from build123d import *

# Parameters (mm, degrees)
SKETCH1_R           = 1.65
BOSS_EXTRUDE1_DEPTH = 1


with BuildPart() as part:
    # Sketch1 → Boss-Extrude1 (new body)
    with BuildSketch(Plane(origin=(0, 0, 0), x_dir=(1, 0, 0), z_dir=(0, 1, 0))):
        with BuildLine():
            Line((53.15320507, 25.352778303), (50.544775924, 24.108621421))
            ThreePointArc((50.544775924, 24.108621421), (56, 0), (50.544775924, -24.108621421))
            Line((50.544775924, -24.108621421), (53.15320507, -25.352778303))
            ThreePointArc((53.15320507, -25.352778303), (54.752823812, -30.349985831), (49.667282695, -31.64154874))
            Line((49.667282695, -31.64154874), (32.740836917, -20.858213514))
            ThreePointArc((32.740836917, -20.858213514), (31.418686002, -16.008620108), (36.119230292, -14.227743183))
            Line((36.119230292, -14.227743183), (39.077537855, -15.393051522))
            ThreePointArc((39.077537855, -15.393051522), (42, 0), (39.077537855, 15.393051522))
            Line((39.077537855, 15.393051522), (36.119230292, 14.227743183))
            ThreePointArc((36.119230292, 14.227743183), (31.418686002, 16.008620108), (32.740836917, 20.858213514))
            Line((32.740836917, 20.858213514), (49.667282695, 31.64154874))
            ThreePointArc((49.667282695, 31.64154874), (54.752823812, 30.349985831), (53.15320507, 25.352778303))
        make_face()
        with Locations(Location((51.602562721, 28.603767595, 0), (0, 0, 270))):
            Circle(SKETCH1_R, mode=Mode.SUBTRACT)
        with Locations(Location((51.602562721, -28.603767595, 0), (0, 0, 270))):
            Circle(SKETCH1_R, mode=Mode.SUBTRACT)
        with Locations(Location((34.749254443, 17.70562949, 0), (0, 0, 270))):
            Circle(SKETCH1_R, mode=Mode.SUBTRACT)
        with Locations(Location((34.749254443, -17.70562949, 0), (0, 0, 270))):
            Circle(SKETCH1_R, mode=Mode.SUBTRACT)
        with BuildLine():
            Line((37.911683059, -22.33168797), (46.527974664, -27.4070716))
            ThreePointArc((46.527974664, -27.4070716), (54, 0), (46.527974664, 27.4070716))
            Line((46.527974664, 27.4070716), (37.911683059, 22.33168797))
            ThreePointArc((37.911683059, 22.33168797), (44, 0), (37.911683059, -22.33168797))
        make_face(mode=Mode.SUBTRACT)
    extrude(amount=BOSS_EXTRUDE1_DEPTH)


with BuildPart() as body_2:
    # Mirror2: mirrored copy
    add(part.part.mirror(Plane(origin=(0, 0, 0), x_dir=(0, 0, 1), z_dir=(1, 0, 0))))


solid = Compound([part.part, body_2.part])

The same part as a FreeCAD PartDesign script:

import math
import FreeCAD as App
import Part
import Sketcher
from FreeCAD import Vector
Q = App.Units.Quantity

doc = App.newDocument("Part")
params = doc.addObject("Spreadsheet::Sheet", "Params")
for row, (alias, value) in enumerate([
    ("sketch1_radius", "42 mm"),
    ("sketch1_radius2", "56 mm"),
    ("sketch1_radius3", "44 mm"),
    ("sketch1_radius4", "54 mm"),
    ("sketch1_diameter", "3.3 mm"),
    ("pad1_length", "1 mm"),
], start=1):
    params.set(f"A{row}", alias)
    params.set(f"B{row}", "=" + value)
    params.setAlias(f"B{row}", alias)

body = doc.addObject("PartDesign::Body", "Body")

# Sketch on XZ plane
sketch1 = doc.addObject("Sketcher::SketchObject", "Sketch")
body.addObject(sketch1)
sketch1.AttachmentSupport = (doc.XZ_Plane, [""])
sketch1.MapMode = "FlatFace"
sketch1.addGeometry(Part.LineSegment(Vector(50.5, -24.1, 0), Vector(53.2, -25.4, 0)), False)
sketch1.addGeometry(Part.ArcOfCircle(Part.Circle(Vector(51.6, -28.6, 0), Vector(0, 0, 1), 3.6), math.radians(-122), math.radians(65)), False)
sketch1.addGeometry(Part.LineSegment(Vector(49.7, -31.6, 0), Vector(32.7, -20.9, 0)), False)
sketch1.addGeometry(Part.ArcOfCircle(Part.Circle(Vector(34.7, -17.7, 0), Vector(0, 0, 1), 3.7), math.radians(69), math.radians(237)), False)
sketch1.addGeometry(Part.LineSegment(Vector(36.1, -14.2, 0), Vector(39.1, -15.4, 0)), False)
sketch1.addGeometry(Part.ArcOfCircle(Part.Circle(Vector(0, 0, 0), Vector(0, 0, 1), 42), math.radians(-22), math.radians(22)), False)
sketch1.addGeometry(Part.LineSegment(Vector(39.1, 15.4, 0), Vector(36.1, 14.2, 0)), False)
sketch1.addGeometry(Part.ArcOfCircle(Part.Circle(Vector(34.7, 17.7, 0), Vector(0, 0, 1), 3.7), math.radians(123), math.radians(291)), False)
sketch1.addGeometry(Part.LineSegment(Vector(32.7, 20.9, 0), Vector(49.7, 31.6, 0)), False)
sketch1.addGeometry(Part.ArcOfCircle(Part.Circle(Vector(51.6, 28.6, 0), Vector(0, 0, 1), 3.6), math.radians(-65), math.radians(122)), False)
sketch1.addGeometry(Part.LineSegment(Vector(53.2, 25.4, 0), Vector(50.5, 24.1, 0)), False)
sketch1.addGeometry(Part.ArcOfCircle(Part.Circle(Vector(0, 0, 0), Vector(0, 0, 1), 56), math.radians(-25), math.radians(25)), False)
sketch1.addGeometry(Part.Circle(Vector(51.6, 28.6, 0), Vector(0, 0, 1), 1.6), False)
sketch1.addGeometry(Part.Circle(Vector(34.7, 17.7, 0), Vector(0, 0, 1), 1.6), False)
sketch1.addGeometry(Part.ArcOfCircle(Part.Circle(Vector(0, 0, 0), Vector(0, 0, 1), 44), math.radians(-31), math.radians(31)), False)
sketch1.addGeometry(Part.LineSegment(Vector(37.9, -22.3, 0), Vector(46.5, -27.4, 0)), False)
sketch1.addGeometry(Part.ArcOfCircle(Part.Circle(Vector(0, 0, 0), Vector(0, 0, 1), 54), math.radians(-30), math.radians(30)), False)
sketch1.addGeometry(Part.LineSegment(Vector(46.5, 27.4, 0), Vector(37.9, 22.3, 0)), False)
sketch1.addGeometry(Part.Circle(Vector(51.6, -28.6, 0), Vector(0, 0, 1), 1.6), False)
sketch1.addGeometry(Part.Circle(Vector(34.7, -17.7, 0), Vector(0, 0, 1), 1.6), False)
sketch1.addConstraint(Sketcher.Constraint("Tangent", 0, 2, 1, 2))
sketch1.addConstraint(Sketcher.Constraint("Tangent", 1, 1, 2, 1))
sketch1.addConstraint(Sketcher.Constraint("Tangent", 2, 2, 3, 2))
sketch1.addConstraint(Sketcher.Constraint("Tangent", 3, 1, 4, 1))
sketch1.addConstraint(Sketcher.Constraint("Coincident", 4, 2, 5, 1))
sketch1.addConstraint(Sketcher.Constraint("Coincident", 5, 2, 6, 1))
sketch1.addConstraint(Sketcher.Constraint("Tangent", 6, 2, 7, 2))
sketch1.addConstraint(Sketcher.Constraint("Tangent", 7, 1, 8, 1))
sketch1.addConstraint(Sketcher.Constraint("Tangent", 8, 2, 9, 2))
sketch1.addConstraint(Sketcher.Constraint("Tangent", 9, 1, 10, 1))
sketch1.addConstraint(Sketcher.Constraint("Coincident", 10, 2, 11, 2))
sketch1.addConstraint(Sketcher.Constraint("Coincident", 11, 1, 0, 1))
sketch1.addConstraint(Sketcher.Constraint("Coincident", 14, 1, 15, 1))
sketch1.addConstraint(Sketcher.Constraint("Coincident", 15, 2, 16, 1))
sketch1.addConstraint(Sketcher.Constraint("Coincident", 16, 2, 17, 1))
sketch1.addConstraint(Sketcher.Constraint("Coincident", 17, 2, 14, 2))
sketch1.addConstraint(Sketcher.Constraint("Coincident", 5, 3, -1, 1))
sketch1.addConstraint(Sketcher.Constraint("Coincident", 11, 3, -1, 1))
sketch1.addConstraint(Sketcher.Constraint("Coincident", 14, 3, -1, 1))
sketch1.addConstraint(Sketcher.Constraint("Coincident", 16, 3, -1, 1))
sketch1.addConstraint(Sketcher.Constraint("Coincident", 12, 3, 9, 3))
sketch1.addConstraint(Sketcher.Constraint("Coincident", 13, 3, 7, 3))
sketch1.addConstraint(Sketcher.Constraint("Coincident", 18, 3, 1, 3))
sketch1.addConstraint(Sketcher.Constraint("Coincident", 19, 3, 3, 3))
sketch1.addConstraint(Sketcher.Constraint("Equal", 3, 7))
sketch1.addConstraint(Sketcher.Constraint("Equal", 1, 9))
sketch1.addConstraint(Sketcher.Constraint("Equal", 12, 13))
sketch1.addConstraint(Sketcher.Constraint("Equal", 13, 18))
sketch1.addConstraint(Sketcher.Constraint("Equal", 18, 19))
sketch1.addConstraint(Sketcher.Constraint("Symmetric", 3, 3, 7, 3, -1))
sketch1.addConstraint(Sketcher.Constraint("Symmetric", 1, 3, 9, 3, -1))
sketch1.addConstraint(Sketcher.Constraint("Vertical", 4, 2, 5, 2))
sketch1.addConstraint(Sketcher.Constraint("Vertical", 0, 2, 9, 1))
sketch1.addConstraint(Sketcher.Constraint("Vertical", 15, 2, 16, 2))
sketch1.addConstraint(Sketcher.Constraint("Vertical", 14, 1, 17, 2))
sketch1.addConstraint(Sketcher.Constraint("Radius", 5, 42.0))
sketch1.addConstraint(Sketcher.Constraint("Radius", 11, 56.0))
sketch1.addConstraint(Sketcher.Constraint("Radius", 14, 44.0))
sketch1.addConstraint(Sketcher.Constraint("Radius", 16, 54.0))
sketch1.addConstraint(Sketcher.Constraint("Diameter", 12, 3.3))
sketch1.addConstraint(Sketcher.Constraint("Angle", 0, Q("-25.5 deg")))
sketch1.addConstraint(Sketcher.Constraint("Angle", 2, Q("147.5 deg")))
sketch1.addConstraint(Sketcher.Constraint("Angle", 4, Q("-21.5 deg")))
sketch1.addConstraint(Sketcher.Constraint("Angle", 15, Q("-30.5 deg")))
sketch1.addConstraint(Sketcher.Constraint("Radius", 1, 3.601864))
sketch1.addConstraint(Sketcher.Constraint("Radius", 3, 3.737984))
sketch1.addConstraint(Sketcher.Constraint("Distance", 2, 20.069501))
sketch1.addConstraint(Sketcher.Constraint("DistanceX", 2, 2, 4, 2, 6.336701))
sketch1.addConstraint(Sketcher.Constraint("DistanceX", 15, 2, 11, 1, 4.016801))
sketch1.addConstraint(Sketcher.Constraint("DistanceY", 3, 3, -1, 1, 17.705629))
sketch1.setExpression("Constraints[35]", "Params.sketch1_radius")
sketch1.setExpression("Constraints[36]", "Params.sketch1_radius2")
sketch1.setExpression("Constraints[37]", "Params.sketch1_radius3")
sketch1.setExpression("Constraints[38]", "Params.sketch1_radius4")
sketch1.setExpression("Constraints[39]", "Params.sketch1_diameter")
pad1 = doc.addObject("PartDesign::Pad", "Pad")
body.addObject(pad1)
pad1.Profile = sketch1
pad1.setExpression("Length", "Params.pad1_length")
pad1.Reversed = True
body2 = doc.addObject("PartDesign::Body", "Body001")
doc.recompute()

mirroring = doc.addObject("Part::Mirroring", "Mirroring")
mirroring.Source = body
mirroring.Base = Vector(0, 0, 0)
mirroring.Normal = Vector(1, 0, 0)
body2.BaseFeature = mirroring
doc.recompute()
mirroring.Visibility = False

doc.recompute()
